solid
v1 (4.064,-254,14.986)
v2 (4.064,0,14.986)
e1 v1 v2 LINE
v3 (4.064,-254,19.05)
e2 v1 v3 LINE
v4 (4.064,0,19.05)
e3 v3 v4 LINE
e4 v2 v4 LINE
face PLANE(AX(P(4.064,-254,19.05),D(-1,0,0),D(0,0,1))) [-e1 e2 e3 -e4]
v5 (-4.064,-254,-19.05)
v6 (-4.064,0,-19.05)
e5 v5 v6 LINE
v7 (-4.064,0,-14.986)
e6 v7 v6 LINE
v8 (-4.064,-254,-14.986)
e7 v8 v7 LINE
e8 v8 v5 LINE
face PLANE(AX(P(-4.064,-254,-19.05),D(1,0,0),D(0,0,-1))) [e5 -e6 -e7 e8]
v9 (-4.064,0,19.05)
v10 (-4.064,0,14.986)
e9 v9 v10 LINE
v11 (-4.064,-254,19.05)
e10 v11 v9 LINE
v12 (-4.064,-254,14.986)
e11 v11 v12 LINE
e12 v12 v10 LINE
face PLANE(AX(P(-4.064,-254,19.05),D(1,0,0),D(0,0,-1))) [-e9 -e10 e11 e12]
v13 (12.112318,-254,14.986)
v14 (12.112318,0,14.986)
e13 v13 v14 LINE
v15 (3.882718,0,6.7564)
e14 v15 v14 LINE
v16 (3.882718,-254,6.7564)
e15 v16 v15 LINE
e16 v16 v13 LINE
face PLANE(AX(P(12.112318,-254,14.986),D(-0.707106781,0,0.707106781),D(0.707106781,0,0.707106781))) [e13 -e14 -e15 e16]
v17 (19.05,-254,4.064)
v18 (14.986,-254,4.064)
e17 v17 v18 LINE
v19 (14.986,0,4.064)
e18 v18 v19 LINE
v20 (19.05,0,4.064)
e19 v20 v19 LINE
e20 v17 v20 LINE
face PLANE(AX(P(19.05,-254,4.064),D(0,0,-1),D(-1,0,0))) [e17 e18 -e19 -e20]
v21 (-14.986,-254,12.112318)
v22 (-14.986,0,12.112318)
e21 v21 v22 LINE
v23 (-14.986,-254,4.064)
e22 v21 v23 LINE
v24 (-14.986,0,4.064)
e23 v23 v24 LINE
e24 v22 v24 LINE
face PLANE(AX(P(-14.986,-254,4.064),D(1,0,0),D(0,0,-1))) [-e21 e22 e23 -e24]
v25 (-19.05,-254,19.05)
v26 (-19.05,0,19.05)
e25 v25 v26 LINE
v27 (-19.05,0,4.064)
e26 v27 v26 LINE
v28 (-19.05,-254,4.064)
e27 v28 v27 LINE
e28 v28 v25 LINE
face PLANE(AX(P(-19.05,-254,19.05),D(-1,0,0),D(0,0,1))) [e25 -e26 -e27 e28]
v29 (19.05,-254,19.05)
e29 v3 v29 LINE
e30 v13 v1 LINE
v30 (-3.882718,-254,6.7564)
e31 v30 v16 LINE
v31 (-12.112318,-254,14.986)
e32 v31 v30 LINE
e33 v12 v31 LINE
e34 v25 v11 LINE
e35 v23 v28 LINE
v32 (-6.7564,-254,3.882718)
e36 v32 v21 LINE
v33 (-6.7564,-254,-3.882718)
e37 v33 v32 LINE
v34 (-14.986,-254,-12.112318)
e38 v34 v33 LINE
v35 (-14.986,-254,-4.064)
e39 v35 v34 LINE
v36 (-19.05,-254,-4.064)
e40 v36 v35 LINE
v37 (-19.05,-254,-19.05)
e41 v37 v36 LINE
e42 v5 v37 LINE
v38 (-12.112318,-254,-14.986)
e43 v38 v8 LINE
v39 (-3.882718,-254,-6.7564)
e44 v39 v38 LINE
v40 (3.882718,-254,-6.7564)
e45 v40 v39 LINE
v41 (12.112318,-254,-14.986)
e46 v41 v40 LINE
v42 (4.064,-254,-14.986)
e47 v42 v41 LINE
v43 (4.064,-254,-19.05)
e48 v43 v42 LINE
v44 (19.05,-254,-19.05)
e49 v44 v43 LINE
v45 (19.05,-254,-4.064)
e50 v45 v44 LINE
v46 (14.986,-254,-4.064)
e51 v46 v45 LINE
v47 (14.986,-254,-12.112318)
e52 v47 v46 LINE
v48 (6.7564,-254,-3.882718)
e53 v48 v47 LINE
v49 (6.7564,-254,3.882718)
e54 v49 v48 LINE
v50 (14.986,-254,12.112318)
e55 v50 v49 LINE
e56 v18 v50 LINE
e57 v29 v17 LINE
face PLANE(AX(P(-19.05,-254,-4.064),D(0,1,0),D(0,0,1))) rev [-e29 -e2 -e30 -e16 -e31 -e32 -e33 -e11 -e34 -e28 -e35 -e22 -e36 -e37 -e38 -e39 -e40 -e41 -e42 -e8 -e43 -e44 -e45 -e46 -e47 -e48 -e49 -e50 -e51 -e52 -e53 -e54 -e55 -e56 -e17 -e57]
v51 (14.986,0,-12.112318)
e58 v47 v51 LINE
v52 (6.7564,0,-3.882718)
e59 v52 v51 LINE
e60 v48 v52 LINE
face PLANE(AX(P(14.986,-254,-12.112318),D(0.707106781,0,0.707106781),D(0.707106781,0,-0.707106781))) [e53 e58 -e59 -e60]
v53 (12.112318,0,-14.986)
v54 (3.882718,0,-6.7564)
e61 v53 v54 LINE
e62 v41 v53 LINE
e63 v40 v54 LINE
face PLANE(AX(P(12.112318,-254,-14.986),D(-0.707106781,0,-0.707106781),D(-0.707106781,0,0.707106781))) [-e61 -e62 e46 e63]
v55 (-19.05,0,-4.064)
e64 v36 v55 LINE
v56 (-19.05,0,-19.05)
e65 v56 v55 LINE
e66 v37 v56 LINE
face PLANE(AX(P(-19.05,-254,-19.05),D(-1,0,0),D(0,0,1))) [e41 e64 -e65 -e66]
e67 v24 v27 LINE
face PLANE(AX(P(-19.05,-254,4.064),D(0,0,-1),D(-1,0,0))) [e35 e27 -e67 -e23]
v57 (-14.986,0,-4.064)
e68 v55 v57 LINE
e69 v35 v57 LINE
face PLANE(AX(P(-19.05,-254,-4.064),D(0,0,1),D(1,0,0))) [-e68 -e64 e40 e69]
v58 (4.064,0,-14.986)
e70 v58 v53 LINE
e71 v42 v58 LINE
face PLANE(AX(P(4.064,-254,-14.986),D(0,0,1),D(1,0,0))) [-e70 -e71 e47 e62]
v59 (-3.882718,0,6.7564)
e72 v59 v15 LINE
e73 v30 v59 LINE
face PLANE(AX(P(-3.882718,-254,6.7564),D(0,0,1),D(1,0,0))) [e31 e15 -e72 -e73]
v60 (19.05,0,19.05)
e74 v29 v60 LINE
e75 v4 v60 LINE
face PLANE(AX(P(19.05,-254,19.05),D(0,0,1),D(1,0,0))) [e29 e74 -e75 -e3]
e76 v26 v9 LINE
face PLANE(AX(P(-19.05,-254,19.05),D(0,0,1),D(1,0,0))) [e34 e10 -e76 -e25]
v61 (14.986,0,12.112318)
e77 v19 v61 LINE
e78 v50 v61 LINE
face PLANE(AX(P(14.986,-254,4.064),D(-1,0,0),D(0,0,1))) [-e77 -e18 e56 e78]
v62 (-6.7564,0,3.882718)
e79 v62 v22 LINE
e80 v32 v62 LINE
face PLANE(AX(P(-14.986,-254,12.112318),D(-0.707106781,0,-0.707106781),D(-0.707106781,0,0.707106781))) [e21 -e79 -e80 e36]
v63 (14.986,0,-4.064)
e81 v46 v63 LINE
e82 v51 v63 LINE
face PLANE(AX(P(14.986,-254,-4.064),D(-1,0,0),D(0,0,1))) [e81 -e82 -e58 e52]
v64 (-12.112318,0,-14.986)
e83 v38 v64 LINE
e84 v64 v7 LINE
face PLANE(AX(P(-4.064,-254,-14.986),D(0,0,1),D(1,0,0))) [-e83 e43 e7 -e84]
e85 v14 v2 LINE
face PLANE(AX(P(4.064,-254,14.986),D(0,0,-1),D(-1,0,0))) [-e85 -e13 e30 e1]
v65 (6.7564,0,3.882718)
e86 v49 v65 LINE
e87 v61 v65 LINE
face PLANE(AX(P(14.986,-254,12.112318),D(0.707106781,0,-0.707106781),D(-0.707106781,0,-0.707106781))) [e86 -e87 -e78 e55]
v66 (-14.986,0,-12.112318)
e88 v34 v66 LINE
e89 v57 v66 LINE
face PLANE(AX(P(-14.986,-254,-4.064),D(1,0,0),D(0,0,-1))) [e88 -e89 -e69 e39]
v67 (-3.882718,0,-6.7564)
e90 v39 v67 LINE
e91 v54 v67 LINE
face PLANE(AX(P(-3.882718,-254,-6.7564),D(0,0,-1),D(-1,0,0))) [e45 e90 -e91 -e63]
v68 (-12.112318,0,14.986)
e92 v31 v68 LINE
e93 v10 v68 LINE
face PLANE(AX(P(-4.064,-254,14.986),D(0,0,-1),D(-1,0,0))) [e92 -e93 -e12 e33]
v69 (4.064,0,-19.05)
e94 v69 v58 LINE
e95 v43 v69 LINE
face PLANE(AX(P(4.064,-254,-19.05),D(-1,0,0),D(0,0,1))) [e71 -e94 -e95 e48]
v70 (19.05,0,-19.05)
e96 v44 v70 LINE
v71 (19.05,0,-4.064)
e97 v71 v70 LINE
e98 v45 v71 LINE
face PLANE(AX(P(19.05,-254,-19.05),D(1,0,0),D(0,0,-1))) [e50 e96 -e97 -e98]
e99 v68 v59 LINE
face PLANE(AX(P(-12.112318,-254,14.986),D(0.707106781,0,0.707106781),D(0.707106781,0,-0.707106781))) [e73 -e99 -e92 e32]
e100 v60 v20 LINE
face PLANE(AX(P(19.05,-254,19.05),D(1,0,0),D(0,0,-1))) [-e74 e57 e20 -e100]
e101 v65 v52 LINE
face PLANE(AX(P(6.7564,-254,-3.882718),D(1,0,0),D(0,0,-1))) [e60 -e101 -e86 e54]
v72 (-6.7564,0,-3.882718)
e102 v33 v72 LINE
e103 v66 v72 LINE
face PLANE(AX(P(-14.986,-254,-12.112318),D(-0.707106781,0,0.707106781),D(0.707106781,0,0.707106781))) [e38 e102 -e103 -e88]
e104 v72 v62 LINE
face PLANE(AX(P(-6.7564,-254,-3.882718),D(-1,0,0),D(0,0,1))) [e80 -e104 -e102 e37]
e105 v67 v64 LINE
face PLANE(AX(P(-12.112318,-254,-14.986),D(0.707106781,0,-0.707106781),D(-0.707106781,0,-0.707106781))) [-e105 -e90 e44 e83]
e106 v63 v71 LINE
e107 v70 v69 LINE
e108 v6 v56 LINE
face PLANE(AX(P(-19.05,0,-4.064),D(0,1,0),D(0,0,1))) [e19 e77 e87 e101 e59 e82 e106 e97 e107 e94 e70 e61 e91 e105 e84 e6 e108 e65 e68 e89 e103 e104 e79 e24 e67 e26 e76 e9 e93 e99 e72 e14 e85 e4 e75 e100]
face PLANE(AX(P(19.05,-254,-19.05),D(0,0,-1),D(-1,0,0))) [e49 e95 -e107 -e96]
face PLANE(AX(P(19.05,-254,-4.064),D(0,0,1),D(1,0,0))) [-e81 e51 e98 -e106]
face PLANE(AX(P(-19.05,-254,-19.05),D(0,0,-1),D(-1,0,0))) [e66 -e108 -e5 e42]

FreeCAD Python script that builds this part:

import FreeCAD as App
import Part
import Sketcher

V = App.Vector
Q = App.Units.Quantity

doc = App.newDocument("Part")
body = doc.addObject("PartDesign::Body", "Body")

# Sketch on XZ plane
sketch1 = body.newObject("Sketcher::SketchObject", "Sketch")
sketch1.AttachmentSupport = (doc.getObject("XZ_Plane"), [""])
sketch1.MapMode = "FlatFace"
sketch1.addGeometry([
    Part.LineSegment(V(-4.064, -19.05, 0), V(-19.05, -19.05, 0)),  # 0
    Part.LineSegment(V(-19.05, -19.05, 0), V(-19.05, -4.064, 0)),  # 1
    Part.LineSegment(V(-19.05, -4.064, 0), V(-14.986, -4.064, 0)),  # 2
    Part.LineSegment(V(-14.986, -4.064, 0), V(-14.986, -12.112318, 0)),  # 3
    Part.LineSegment(V(-14.986, -12.112318, 0), V(-6.7564, -3.882718, 0)),  # 4
    Part.LineSegment(V(-6.7564, -3.882718, 0), V(-6.7564, 3.882718, 0)),  # 5
    Part.LineSegment(V(-6.7564, 3.882718, 0), V(-14.986, 12.112318, 0)),  # 6
    Part.LineSegment(V(-14.986, 12.112318, 0), V(-14.986, 4.064, 0)),  # 7
    Part.LineSegment(V(-14.986, 4.064, 0), V(-19.05, 4.064, 0)),  # 8
    Part.LineSegment(V(-19.05, 4.064, 0), V(-19.05, 19.05, 0)),  # 9
    Part.LineSegment(V(-19.05, 19.05, 0), V(-4.064, 19.05, 0)),  # 10
    Part.LineSegment(V(-4.064, 19.05, 0), V(-4.064, 14.986, 0)),  # 11
    Part.LineSegment(V(-4.064, 14.986, 0), V(-12.112318, 14.986, 0)),  # 12
    Part.LineSegment(V(-12.112318, 14.986, 0), V(-3.882718, 6.7564, 0)),  # 13
    Part.LineSegment(V(-3.882718, 6.7564, 0), V(3.882718, 6.7564, 0)),  # 14
    Part.LineSegment(V(3.882718, 6.7564, 0), V(12.112318, 14.986, 0)),  # 15
    Part.LineSegment(V(12.112318, 14.986, 0), V(4.064, 14.986, 0)),  # 16
    Part.LineSegment(V(4.064, 14.986, 0), V(4.064, 19.05, 0)),  # 17
    Part.LineSegment(V(4.064, 19.05, 0), V(19.05, 19.05, 0)),  # 18
    Part.LineSegment(V(19.05, 19.05, 0), V(19.05, 4.064, 0)),  # 19
    Part.LineSegment(V(19.05, 4.064, 0), V(14.986, 4.064, 0)),  # 20
    Part.LineSegment(V(14.986, 4.064, 0), V(14.986, 12.112318, 0)),  # 21
    Part.LineSegment(V(14.986, 12.112318, 0), V(6.7564, 3.882718, 0)),  # 22
    Part.LineSegment(V(6.7564, 3.882718, 0), V(6.7564, -3.882718, 0)),  # 23
    Part.LineSegment(V(6.7564, -3.882718, 0), V(14.986, -12.112318, 0)),  # 24
    Part.LineSegment(V(14.986, -12.112318, 0), V(14.986, -4.064, 0)),  # 25
    Part.LineSegment(V(14.986, -4.064, 0), V(19.05, -4.064, 0)),  # 26
    Part.LineSegment(V(19.05, -4.064, 0), V(19.05, -19.05, 0)),  # 27
    Part.LineSegment(V(19.05, -19.05, 0), V(4.064, -19.05, 0)),  # 28
    Part.LineSegment(V(4.064, -19.05, 0), V(4.064, -14.986, 0)),  # 29
    Part.LineSegment(V(4.064, -14.986, 0), V(12.112318, -14.986, 0)),  # 30
    Part.LineSegment(V(12.112318, -14.986, 0), V(3.882718, -6.7564, 0)),  # 31
    Part.LineSegment(V(3.882718, -6.7564, 0), V(-3.882718, -6.7564, 0)),  # 32
    Part.LineSegment(V(-3.882718, -6.7564, 0), V(-12.112318, -14.986, 0)),  # 33
    Part.LineSegment(V(-12.112318, -14.986, 0), V(-4.064, -14.986, 0)),  # 34
    Part.LineSegment(V(-4.064, -14.986, 0), V(-4.064, -19.05, 0)),  # 35
], False)
sketch1.addConstraint([
    Sketcher.Constraint("Coincident", 0, 2, 1, 1),
    Sketcher.Constraint("Coincident", 1, 2, 2, 1),
    Sketcher.Constraint("Coincident", 2, 2, 3, 1),
    Sketcher.Constraint("Coincident", 3, 2, 4, 1),
    Sketcher.Constraint("Coincident", 4, 2, 5, 1),
    Sketcher.Constraint("Coincident", 5, 2, 6, 1),
    Sketcher.Constraint("Coincident", 6, 2, 7, 1),
    Sketcher.Constraint("Coincident", 7, 2, 8, 1),
    Sketcher.Constraint("Coincident", 8, 2, 9, 1),
    Sketcher.Constraint("Coincident", 9, 2, 10, 1),
    Sketcher.Constraint("Coincident", 10, 2, 11, 1),
    Sketcher.Constraint("Coincident", 11, 2, 12, 1),
    Sketcher.Constraint("Coincident", 12, 2, 13, 1),
    Sketcher.Constraint("Coincident", 13, 2, 14, 1),
    Sketcher.Constraint("Coincident", 14, 2, 15, 1),
    Sketcher.Constraint("Coincident", 15, 2, 16, 1),
    Sketcher.Constraint("Coincident", 16, 2, 17, 1),
    Sketcher.Constraint("Coincident", 17, 2, 18, 1),
    Sketcher.Constraint("Coincident", 18, 2, 19, 1),
    Sketcher.Constraint("Coincident", 19, 2, 20, 1),
    Sketcher.Constraint("Coincident", 20, 2, 21, 1),
    Sketcher.Constraint("Coincident", 21, 2, 22, 1),
    Sketcher.Constraint("Coincident", 22, 2, 23, 1),
    Sketcher.Constraint("Coincident", 23, 2, 24, 1),
    Sketcher.Constraint("Coincident", 24, 2, 25, 1),
    Sketcher.Constraint("Coincident", 25, 2, 26, 1),
    Sketcher.Constraint("Coincident", 26, 2, 27, 1),
    Sketcher.Constraint("Coincident", 27, 2, 28, 1),
    Sketcher.Constraint("Coincident", 28, 2, 29, 1),
    Sketcher.Constraint("Coincident", 29, 2, 30, 1),
    Sketcher.Constraint("Coincident", 30, 2, 31, 1),
    Sketcher.Constraint("Coincident", 31, 2, 32, 1),
    Sketcher.Constraint("Coincident", 32, 2, 33, 1),
    Sketcher.Constraint("Coincident", 33, 2, 34, 1),
    Sketcher.Constraint("Coincident", 34, 2, 35, 1),
    Sketcher.Constraint("Coincident", 35, 2, 0, 1),
    Sketcher.Constraint("Horizontal", 0),
    Sketcher.Constraint("Vertical", 1),
    Sketcher.Constraint("Horizontal", 2),
    Sketcher.Constraint("Vertical", 3),
    Sketcher.Constraint("Vertical", 5),
    Sketcher.Constraint("Vertical", 7),
    Sketcher.Constraint("Horizontal", 8),
    Sketcher.Constraint("Vertical", 9),
    Sketcher.Constraint("Horizontal", 10),
    Sketcher.Constraint("Vertical", 11),
    Sketcher.Constraint("Horizontal", 12),
    Sketcher.Constraint("Horizontal", 14),
    Sketcher.Constraint("Horizontal", 16),
    Sketcher.Constraint("Vertical", 17),
    Sketcher.Constraint("Horizontal", 18),
    Sketcher.Constraint("Vertical", 19),
    Sketcher.Constraint("Horizontal", 20),
    Sketcher.Constraint("Vertical", 21),
    Sketcher.Constraint("Vertical", 23),
    Sketcher.Constraint("Vertical", 25),
    Sketcher.Constraint("Horizontal", 26),
    Sketcher.Constraint("Vertical", 27),
    Sketcher.Constraint("Horizontal", 28),
    Sketcher.Constraint("Vertical", 29),
    Sketcher.Constraint("Horizontal", 30),
    Sketcher.Constraint("Horizontal", 32),
    Sketcher.Constraint("Horizontal", 34),
    Sketcher.Constraint("Vertical", 35),
    Sketcher.Constraint("Symmetric", 0, 2, 18, 2, -1, 1),
    Sketcher.Constraint("Symmetric", 2, 2, 20, 2, -1, 1),
    Sketcher.Constraint("Symmetric", 4, 2, 22, 2, -1, 1),
    Sketcher.Constraint("Symmetric", 6, 2, 24, 2, -1, 1),
    Sketcher.Constraint("Symmetric", 8, 2, 26, 2, -1, 1),
    Sketcher.Constraint("Symmetric", 10, 2, 28, 2, -1, 1),
    Sketcher.Constraint("Symmetric", 12, 2, 30, 2, -1, 1),
    Sketcher.Constraint("Symmetric", 13, 2, 31, 2, -1, 1),
    Sketcher.Constraint("Symmetric", 15, 2, 33, 2, -1, 1),
    Sketcher.Constraint("Symmetric", 12, 2, 15, 2, -2),
    Sketcher.Constraint("Symmetric", 10, 2, 17, 2, -2),
    Sketcher.Constraint("Symmetric", 8, 2, 19, 2, -2),
    Sketcher.Constraint("Symmetric", 6, 2, 21, 2, -2),
    Sketcher.Constraint("Perpendicular", 4, 6),
    Sketcher.Constraint("Parallel", 6, 13),
    Sketcher.Constraint("Perpendicular", 13, 15),
    Sketcher.Constraint("Parallel", 15, 22),
    Sketcher.Constraint("Perpendicular", 22, 24),
    Sketcher.Constraint("Perpendicular", 31, 33),
    Sketcher.Constraint("Horizontal", 5, 2, 22, 2),
    Sketcher.Constraint("Vertical", 11, 2, 34, 2),
    Sketcher.Constraint("Equal", 28, 1),
    Sketcher.Constraint("Equal", 34, 3),
    Sketcher.Constraint("Equal", 32, 5),
    Sketcher.Constraint("Equal", 26, 11),
    Sketcher.Constraint("Equal", 6, 13),
    Sketcher.Constraint("DistanceX", 0, 2, 0, 1, Q("0.59 in")),
    Sketcher.Constraint("DistanceX", 2, 1, 2, 2, Q("0.16 in")),
    Sketcher.Constraint("DistanceX", 0, 2, -1, 1, Q("0.75 in")),
    Sketcher.Constraint("DistanceX", 4, 2, -1, 1, Q("0.266 in")),
    Sketcher.Constraint("DistanceX", 12, 2, 12, 1, Q("8.048318 mm")),
])
pad1 = body.newObject("PartDesign::Pad", "Pad")
pad1.Profile = sketch1
pad1.Length = Q("10 in")

doc.recompute()
